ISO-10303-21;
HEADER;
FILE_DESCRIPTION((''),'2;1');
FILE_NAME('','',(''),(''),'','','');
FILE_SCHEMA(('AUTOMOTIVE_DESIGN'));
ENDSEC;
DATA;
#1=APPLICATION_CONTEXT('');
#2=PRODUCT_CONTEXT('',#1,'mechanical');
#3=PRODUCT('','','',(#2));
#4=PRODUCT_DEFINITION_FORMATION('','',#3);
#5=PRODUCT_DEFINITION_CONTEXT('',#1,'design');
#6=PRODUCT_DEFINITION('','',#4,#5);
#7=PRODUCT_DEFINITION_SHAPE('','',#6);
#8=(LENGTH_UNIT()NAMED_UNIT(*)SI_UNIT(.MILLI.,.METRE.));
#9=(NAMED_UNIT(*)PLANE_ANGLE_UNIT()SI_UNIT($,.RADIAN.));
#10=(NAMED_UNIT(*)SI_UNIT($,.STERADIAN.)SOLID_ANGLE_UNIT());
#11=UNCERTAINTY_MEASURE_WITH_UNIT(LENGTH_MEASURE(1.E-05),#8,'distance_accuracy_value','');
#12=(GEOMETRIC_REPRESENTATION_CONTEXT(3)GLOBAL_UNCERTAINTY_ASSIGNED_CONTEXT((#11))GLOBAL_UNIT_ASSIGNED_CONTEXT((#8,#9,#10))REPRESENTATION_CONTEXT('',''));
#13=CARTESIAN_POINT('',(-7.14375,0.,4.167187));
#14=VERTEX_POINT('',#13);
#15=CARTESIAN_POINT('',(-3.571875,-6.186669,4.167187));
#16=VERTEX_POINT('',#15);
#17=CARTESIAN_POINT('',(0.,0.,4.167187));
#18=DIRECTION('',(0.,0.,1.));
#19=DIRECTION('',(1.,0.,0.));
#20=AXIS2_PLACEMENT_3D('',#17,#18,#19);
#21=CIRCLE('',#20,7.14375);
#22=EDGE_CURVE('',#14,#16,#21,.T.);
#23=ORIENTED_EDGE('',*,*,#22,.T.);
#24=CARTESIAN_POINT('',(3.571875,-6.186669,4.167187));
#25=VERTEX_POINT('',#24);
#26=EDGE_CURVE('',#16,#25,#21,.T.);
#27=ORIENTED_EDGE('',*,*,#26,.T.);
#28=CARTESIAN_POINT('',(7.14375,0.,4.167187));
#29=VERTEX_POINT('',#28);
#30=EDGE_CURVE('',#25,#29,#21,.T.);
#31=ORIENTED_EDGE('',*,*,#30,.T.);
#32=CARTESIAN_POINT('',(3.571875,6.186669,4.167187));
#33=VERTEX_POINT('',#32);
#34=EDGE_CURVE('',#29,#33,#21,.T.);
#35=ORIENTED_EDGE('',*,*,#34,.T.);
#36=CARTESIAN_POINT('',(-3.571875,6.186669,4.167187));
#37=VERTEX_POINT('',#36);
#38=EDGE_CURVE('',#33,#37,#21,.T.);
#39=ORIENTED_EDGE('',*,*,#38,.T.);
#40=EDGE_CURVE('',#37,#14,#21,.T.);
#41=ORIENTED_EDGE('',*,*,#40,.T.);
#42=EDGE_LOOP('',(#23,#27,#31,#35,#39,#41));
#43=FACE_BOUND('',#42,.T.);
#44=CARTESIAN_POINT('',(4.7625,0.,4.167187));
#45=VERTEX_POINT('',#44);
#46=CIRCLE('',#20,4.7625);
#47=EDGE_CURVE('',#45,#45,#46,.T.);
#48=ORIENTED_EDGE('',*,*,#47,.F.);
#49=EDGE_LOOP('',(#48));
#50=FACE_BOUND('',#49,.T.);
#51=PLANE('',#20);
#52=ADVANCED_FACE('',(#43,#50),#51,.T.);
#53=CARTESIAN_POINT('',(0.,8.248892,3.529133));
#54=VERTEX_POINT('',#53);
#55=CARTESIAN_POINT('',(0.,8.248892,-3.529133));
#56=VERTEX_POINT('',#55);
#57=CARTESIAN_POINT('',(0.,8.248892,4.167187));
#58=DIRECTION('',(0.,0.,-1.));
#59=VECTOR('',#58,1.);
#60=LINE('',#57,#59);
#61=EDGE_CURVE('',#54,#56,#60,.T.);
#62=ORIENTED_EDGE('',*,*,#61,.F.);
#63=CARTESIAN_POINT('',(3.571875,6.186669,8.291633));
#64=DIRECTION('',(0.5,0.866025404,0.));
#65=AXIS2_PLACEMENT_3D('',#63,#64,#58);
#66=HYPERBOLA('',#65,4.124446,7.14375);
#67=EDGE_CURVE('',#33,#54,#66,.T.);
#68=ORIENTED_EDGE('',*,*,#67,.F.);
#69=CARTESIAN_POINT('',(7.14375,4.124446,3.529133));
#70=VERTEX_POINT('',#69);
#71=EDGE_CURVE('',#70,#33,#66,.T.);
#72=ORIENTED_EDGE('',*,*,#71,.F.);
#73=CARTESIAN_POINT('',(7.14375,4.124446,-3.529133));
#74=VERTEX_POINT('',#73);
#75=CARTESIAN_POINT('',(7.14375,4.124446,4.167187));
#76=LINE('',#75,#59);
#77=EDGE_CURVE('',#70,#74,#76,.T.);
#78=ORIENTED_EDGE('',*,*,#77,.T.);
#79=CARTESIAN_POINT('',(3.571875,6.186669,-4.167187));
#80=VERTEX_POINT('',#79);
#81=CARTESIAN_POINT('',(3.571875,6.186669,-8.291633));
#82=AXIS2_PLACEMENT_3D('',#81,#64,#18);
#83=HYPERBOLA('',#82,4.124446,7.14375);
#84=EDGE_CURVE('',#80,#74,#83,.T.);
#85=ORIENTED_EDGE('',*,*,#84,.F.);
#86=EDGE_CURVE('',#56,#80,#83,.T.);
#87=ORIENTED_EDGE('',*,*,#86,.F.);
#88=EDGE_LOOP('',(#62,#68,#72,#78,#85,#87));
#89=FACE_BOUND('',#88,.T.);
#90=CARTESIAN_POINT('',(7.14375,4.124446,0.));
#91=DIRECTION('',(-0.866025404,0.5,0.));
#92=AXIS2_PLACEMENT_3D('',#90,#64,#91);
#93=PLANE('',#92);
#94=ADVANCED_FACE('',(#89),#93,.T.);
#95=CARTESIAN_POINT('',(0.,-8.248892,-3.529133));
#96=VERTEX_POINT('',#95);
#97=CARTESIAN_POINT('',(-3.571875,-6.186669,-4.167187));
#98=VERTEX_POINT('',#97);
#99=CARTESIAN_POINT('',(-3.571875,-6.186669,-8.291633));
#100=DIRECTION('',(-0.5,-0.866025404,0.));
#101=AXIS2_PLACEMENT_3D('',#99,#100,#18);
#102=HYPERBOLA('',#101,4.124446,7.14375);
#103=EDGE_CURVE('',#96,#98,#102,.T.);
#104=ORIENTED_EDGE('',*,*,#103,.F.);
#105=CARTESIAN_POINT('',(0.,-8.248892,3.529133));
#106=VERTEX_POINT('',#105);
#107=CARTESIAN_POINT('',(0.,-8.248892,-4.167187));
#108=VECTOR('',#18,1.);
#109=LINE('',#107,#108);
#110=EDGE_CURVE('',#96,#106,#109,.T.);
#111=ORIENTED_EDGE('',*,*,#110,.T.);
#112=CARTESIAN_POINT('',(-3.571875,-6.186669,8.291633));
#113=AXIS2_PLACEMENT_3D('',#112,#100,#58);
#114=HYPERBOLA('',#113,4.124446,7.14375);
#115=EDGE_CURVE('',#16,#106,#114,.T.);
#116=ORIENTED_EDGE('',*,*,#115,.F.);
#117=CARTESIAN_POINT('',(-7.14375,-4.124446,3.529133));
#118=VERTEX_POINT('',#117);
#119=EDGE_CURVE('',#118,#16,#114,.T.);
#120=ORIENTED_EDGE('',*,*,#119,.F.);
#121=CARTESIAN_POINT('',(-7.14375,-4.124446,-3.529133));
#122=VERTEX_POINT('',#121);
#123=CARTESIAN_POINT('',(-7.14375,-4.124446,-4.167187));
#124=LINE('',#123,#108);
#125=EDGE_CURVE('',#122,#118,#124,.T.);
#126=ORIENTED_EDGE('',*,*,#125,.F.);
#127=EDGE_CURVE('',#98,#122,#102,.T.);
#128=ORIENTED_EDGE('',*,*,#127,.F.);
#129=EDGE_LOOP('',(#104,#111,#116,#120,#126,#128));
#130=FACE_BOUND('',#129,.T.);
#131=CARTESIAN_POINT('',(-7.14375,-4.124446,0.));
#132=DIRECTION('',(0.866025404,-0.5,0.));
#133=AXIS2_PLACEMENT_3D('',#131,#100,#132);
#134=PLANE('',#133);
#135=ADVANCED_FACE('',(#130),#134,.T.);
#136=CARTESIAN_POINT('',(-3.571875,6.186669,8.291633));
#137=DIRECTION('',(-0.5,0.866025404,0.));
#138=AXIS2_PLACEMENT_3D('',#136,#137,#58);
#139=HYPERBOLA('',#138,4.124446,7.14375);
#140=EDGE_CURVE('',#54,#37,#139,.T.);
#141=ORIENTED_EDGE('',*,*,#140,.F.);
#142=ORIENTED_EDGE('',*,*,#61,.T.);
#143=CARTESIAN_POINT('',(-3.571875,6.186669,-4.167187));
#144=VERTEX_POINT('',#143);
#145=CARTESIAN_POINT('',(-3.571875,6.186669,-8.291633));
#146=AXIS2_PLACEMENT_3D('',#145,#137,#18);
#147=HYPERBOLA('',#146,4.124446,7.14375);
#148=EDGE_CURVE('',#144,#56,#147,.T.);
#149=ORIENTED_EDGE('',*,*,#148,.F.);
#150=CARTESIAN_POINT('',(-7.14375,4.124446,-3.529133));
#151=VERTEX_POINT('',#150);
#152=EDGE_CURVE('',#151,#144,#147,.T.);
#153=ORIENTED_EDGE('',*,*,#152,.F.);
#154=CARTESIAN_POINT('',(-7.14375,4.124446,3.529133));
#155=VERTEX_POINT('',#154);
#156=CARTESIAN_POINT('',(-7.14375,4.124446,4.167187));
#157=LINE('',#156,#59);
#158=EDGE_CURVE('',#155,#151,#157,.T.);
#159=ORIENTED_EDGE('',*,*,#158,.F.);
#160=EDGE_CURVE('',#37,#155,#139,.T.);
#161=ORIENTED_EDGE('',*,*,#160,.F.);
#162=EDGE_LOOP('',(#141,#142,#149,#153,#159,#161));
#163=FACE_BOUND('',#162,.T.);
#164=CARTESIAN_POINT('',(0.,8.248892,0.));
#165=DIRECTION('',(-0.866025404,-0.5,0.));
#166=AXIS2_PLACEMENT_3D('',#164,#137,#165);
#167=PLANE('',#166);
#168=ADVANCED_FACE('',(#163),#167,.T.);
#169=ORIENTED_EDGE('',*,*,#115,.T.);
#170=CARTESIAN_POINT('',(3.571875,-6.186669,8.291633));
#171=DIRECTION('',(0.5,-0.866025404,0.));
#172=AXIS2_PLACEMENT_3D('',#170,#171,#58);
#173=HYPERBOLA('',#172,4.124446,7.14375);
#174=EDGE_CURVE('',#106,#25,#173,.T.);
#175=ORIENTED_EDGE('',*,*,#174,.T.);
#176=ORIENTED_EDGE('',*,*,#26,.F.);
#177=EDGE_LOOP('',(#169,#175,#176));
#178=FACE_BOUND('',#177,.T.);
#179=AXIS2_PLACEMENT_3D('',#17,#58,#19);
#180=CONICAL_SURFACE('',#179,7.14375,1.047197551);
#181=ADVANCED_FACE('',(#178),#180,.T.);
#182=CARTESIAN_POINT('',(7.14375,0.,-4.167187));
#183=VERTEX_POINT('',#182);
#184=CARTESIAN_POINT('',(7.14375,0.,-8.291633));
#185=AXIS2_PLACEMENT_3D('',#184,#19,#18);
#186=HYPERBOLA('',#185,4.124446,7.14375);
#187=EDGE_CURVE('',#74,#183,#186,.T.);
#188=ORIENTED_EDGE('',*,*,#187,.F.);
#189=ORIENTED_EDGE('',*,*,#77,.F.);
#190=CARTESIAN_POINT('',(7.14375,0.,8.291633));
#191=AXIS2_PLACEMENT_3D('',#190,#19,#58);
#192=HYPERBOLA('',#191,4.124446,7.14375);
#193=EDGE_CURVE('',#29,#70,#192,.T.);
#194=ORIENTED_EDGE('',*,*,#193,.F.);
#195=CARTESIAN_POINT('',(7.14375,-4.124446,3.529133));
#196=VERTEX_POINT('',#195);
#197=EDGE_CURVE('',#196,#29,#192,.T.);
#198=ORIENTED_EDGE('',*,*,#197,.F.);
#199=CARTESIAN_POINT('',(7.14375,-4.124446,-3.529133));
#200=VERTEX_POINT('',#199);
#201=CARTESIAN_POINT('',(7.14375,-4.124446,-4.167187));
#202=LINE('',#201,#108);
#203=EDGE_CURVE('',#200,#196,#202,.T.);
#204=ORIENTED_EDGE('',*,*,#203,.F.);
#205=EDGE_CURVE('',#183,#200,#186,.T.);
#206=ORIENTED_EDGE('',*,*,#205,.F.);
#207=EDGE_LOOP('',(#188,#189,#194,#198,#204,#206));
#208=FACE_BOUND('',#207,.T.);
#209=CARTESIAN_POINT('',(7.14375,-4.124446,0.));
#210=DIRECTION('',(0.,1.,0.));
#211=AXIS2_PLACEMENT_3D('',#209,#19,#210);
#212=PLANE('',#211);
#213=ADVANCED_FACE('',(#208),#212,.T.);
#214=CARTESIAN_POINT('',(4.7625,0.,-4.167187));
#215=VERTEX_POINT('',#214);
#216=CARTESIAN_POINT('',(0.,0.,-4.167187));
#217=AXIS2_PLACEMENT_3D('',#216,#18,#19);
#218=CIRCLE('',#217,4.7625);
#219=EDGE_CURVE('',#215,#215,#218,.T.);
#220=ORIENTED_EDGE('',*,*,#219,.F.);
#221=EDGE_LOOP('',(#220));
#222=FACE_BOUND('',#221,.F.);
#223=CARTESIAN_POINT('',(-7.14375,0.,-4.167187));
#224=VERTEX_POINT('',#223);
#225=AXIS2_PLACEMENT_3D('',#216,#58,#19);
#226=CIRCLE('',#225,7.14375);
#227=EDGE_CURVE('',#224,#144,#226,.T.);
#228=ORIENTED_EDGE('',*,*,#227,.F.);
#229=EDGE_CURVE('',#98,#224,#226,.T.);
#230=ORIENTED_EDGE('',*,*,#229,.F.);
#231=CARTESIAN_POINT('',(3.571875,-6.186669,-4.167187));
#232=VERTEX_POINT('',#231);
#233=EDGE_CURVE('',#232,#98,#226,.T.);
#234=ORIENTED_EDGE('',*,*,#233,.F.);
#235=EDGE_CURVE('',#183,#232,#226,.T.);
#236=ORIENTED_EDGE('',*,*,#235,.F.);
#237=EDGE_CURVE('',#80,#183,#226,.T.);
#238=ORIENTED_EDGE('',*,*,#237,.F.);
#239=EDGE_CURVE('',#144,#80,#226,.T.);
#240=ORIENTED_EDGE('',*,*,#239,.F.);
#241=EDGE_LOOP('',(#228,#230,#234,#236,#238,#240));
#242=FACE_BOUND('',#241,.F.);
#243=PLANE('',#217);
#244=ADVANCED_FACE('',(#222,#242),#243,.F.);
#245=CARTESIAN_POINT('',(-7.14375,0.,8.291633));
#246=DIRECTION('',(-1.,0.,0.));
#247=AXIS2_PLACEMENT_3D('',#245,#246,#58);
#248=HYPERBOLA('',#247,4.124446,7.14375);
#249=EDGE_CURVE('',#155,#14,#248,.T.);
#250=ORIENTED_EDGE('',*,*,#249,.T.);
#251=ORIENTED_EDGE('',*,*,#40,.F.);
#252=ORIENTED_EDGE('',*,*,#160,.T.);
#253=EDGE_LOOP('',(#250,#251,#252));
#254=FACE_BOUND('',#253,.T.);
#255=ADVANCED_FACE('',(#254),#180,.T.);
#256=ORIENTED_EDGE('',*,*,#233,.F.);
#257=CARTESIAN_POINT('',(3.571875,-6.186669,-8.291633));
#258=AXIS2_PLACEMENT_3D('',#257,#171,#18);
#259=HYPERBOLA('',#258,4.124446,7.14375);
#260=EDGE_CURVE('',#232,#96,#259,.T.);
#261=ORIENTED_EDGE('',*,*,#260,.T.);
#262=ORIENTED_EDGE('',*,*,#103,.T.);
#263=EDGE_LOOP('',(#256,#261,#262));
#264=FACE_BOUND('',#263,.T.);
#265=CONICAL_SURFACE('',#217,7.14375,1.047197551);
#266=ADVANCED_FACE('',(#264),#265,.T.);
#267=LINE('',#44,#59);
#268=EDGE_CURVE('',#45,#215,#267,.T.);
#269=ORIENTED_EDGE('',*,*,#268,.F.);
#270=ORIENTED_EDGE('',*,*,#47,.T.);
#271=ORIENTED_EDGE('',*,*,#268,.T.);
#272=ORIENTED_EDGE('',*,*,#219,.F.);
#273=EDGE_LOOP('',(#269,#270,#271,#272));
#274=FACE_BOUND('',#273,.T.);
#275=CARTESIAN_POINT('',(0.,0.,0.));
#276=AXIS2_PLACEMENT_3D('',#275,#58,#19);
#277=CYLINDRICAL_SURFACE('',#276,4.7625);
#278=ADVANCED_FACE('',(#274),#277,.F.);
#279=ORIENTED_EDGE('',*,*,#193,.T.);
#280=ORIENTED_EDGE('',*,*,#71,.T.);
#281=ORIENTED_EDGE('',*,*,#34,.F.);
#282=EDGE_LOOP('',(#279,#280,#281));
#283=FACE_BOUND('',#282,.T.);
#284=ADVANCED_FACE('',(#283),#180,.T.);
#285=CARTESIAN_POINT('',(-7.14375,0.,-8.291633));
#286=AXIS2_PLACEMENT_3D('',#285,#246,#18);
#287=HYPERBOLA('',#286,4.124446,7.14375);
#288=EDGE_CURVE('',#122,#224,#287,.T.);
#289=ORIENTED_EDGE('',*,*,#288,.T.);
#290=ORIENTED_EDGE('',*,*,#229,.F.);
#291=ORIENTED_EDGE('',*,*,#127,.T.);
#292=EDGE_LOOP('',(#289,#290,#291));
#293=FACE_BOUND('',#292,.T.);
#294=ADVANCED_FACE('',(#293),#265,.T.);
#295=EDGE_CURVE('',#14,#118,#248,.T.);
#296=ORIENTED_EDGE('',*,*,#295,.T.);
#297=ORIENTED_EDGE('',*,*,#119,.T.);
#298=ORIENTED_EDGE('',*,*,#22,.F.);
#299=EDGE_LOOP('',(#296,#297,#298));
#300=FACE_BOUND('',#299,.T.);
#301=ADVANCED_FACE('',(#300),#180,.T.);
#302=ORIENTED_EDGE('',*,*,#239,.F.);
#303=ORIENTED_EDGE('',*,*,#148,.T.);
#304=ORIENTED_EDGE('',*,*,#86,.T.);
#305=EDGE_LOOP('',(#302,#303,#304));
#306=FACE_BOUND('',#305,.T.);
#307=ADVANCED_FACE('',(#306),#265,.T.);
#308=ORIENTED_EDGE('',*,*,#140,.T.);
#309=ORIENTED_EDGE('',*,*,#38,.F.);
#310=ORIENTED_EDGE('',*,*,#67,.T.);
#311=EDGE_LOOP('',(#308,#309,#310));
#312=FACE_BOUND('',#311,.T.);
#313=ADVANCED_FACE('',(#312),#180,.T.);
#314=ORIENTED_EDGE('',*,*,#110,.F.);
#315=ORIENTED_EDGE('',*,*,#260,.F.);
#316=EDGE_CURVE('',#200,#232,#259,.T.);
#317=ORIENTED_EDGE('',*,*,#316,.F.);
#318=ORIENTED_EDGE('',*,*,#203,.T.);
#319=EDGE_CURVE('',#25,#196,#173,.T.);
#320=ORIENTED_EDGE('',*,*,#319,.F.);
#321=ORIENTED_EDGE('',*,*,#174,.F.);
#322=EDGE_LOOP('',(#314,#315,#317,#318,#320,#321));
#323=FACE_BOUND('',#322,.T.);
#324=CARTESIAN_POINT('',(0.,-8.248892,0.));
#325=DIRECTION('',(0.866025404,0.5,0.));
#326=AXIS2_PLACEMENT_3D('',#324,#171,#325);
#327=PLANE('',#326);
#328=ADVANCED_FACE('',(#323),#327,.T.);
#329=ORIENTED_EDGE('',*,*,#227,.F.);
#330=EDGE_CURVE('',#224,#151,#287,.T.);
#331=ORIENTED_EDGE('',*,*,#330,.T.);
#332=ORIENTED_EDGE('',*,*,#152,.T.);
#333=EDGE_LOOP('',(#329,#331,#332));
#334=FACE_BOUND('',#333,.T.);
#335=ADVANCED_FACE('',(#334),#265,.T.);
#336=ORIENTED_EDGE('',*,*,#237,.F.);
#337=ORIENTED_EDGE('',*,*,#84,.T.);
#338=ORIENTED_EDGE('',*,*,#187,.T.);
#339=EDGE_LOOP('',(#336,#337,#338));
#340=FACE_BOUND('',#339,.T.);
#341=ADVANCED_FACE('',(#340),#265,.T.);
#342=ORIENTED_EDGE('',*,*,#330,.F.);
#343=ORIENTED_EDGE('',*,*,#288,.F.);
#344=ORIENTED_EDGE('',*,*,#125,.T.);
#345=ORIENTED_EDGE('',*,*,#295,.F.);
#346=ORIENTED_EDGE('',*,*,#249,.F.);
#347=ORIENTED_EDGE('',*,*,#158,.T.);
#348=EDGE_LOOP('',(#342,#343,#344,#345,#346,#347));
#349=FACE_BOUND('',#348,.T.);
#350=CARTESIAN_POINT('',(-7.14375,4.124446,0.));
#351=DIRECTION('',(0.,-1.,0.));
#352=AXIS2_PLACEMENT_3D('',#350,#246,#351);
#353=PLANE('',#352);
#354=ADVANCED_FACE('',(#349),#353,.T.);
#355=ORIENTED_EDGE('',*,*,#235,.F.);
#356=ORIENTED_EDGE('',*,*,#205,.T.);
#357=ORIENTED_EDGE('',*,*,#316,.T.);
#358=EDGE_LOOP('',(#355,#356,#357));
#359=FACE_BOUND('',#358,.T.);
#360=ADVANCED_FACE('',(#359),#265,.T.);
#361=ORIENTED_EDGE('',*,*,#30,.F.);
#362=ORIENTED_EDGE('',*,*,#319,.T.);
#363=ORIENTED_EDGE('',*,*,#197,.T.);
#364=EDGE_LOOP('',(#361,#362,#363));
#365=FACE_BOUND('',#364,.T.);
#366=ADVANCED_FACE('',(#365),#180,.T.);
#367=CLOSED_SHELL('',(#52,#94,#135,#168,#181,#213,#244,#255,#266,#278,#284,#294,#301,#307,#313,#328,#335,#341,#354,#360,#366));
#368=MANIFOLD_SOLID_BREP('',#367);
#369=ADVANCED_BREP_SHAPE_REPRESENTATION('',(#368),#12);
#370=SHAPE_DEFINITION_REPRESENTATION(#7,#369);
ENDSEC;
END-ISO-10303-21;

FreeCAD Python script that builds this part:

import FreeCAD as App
import Part
import Sketcher
from FreeCAD import Vector
Q = App.Units.Quantity


def faces_at(feature, points):
    """Names of the faces that lie closest to the given points."""
    faces = feature.Shape.Faces
    near = lambda p: min(range(len(faces)), key=lambda i: faces[i].distToShape(Part.Vertex(*p))[0])
    return sorted({f"Face{near(p) + 1}" for p in points})


def add_polygon(sketch, points):
    """Adds a closed chain of lines whose ends are joined by coincident constraints."""
    first, n = sketch.GeometryCount, len(points)
    for a, b in zip(points, points[1:] + points[:1]):
        sketch.addGeometry(Part.LineSegment(App.Vector(*a, 0), App.Vector(*b, 0)), False)
    for i in range(n):
        sketch.addConstraint(Sketcher.Constraint("Coincident", first + i, 2, first + (i + 1) % n, 1))

doc = App.newDocument("Part")
params = doc.addObject("Spreadsheet::Sheet", "Params")
for row, (alias, value) in enumerate([
    ("sketch1_diameter", "0.375 in"),
    ("pad1_length", "0.328125 in"),
    ("sketch2_diameter", "0.5625 in"),
    ("pad2_length", "1 in"),
    ("draft_angle", "60 deg"),
    ("sketch3_diameter", "0.5625 in"),
    ("pad3_length", "1 in"),
    ("draft2_angle", "60 deg"),
], start=1):
    params.set(f"A{row}", alias)
    params.set(f"B{row}", "=" + value)
    params.setAlias(f"B{row}", alias)

body = doc.addObject("PartDesign::Body", "Body")

sketch1 = body.newObject("Sketcher::SketchObject", "Sketch")
sketch1.AttachmentSupport = (doc.getObject("XY_Plane"), [""])
sketch1.MapMode = "FlatFace"
add_polygon(sketch1, [(-7.14375, 4.124446), (-7.14375, -4.124446), (0, -8.248892), (7.14375, -4.124446), (7.14375, 4.124446), (0, 8.248892)])
sketch1.addGeometry(Part.Circle(Vector(0, 0, 0), Vector(0, 0, 1), 4.7625), False)
sketch1.addConstraint([
    Sketcher.Constraint("Vertical", 0),
    Sketcher.Constraint("Vertical", 3),
    Sketcher.Constraint("Coincident", 6, 3, -1, 1),
    Sketcher.Constraint("Symmetric", 0, 2, 3, 2, -1, 1),
    Sketcher.Constraint("Symmetric", 1, 2, 4, 2, -1, 1),
    Sketcher.Constraint("PointOnObject", 1, 2, -2),
    Sketcher.Constraint("Parallel", 2, 5),
    Sketcher.Constraint("Horizontal", 0, 2, 2, 2),
    Sketcher.Constraint("Diameter", 6, Q("0.375 in")),
    Sketcher.Constraint("Angle", 1, Q("-30 deg")),
    Sketcher.Constraint("DistanceX", 0, 2, -1, 1, Q("0.28125 in")),
    Sketcher.Constraint("DistanceY", 0, 2, 0, 1, 8.248892),
])
sketch1.setExpression("Constraints[14]", "Params.sketch1_diameter")
pad1 = body.newObject("PartDesign::Pad", "Pad")
pad1.Profile = sketch1
pad1.setExpression("Length", "Params.pad1_length")
pad1.Midplane = True
body2 = doc.addObject("PartDesign::Body", "Body001")

sketch2 = body2.newObject("Sketcher::SketchObject", "Sketch001")
sketch2.AttachmentSupport = (doc.getObject("XY_Plane001"), [""])
sketch2.MapMode = "FlatFace"
sketch2.AttachmentOffset = App.Placement(Vector(0, 0, 4.167187), App.Rotation())
add_polygon(sketch2, [(-54.474, 55.579), (-54.474, -55.579), (54.474, -55.579), (54.474, 55.579)])
sketch2.addGeometry(Part.Circle(Vector(0, 0, 0), Vector(0, 0, 1), 7.14375), False)
sketch2.addConstraint([
    Sketcher.Constraint("Vertical", 0),
    Sketcher.Constraint("Horizontal", 1),
    Sketcher.Constraint("Vertical", 2),
    Sketcher.Constraint("Horizontal", 3),
    Sketcher.Constraint("Coincident", 4, 3, -1, 1),
    Sketcher.Constraint("Symmetric", 0, 2, 2, 2, -1, 1),
    Sketcher.Constraint("Diameter", 4, Q("0.5625 in")),
    Sketcher.Constraint("DistanceX", 1, 1, 1, 2, 108.948),
    Sketcher.Constraint("DistanceY", 0, 2, 0, 1, 111.158),
])
sketch2.setExpression("Constraints[10]", "Params.sketch2_diameter")
pad2 = body2.newObject("PartDesign::Pad", "Pad001")
pad2.Profile = sketch2
pad2.setExpression("Length", "Params.pad2_length")
pad2.Reversed = True
doc.recompute()

datumplane = body2.newObject("PartDesign::Plane", "DatumPlane")
datumplane.AttachmentSupport = (doc.getObject("XY_Plane001"), [""])
datumplane.MapMode = "FlatFace"
datumplane.AttachmentOffset = App.Placement(Vector(0, 0, 4.167187), App.Rotation())
draft = body2.newObject("PartDesign::Draft", "Draft")
draft.Base = (pad2, faces_at(pad2, [
    (0, -55.579, -8.533),
    (54.474, 0, -8.533),
    (0, 55.579, -8.533),
    (-54.474, 0, -8.533),
    (-7.144, 0, -8.533),
]))
draft.NeutralPlane = (datumplane, [""])
draft.setExpression("Angle", "Params.draft_angle")
draft.Reversed = True
doc.recompute()

boolean = body.newObject("PartDesign::Boolean", "Boolean")
boolean.Type = "Cut"
boolean.addObjects([body2])
body3 = doc.addObject("PartDesign::Body", "Body002")

sketch3 = body3.newObject("Sketcher::SketchObject", "Sketch002")
sketch3.AttachmentSupport = (doc.getObject("XY_Plane002"), [""])
sketch3.MapMode = "FlatFace"
sketch3.AttachmentOffset = App.Placement(Vector(0, 0, -4.167187), App.Rotation())
add_polygon(sketch3, [(-54.474, -55.579), (-54.474, 55.579), (54.474, 55.579), (54.474, -55.579)])
sketch3.addGeometry(Part.Circle(Vector(0, 0, 0), Vector(0, 0, 1), 7.14375), False)
sketch3.addConstraint([
    Sketcher.Constraint("Vertical", 0),
    Sketcher.Constraint("Horizontal", 1),
    Sketcher.Constraint("Vertical", 2),
    Sketcher.Constraint("Horizontal", 3),
    Sketcher.Constraint("Coincident", 4, 3, -1, 1),
    Sketcher.Constraint("Symmetric", 0, 2, 2, 2, -1, 1),
    Sketcher.Constraint("Diameter", 4, Q("0.5625 in")),
    Sketcher.Constraint("DistanceX", 1, 1, 1, 2, 108.948),
    Sketcher.Constraint("DistanceY", 0, 1, 0, 2, 111.158),
])
sketch3.setExpression("Constraints[10]", "Params.sketch3_diameter")
pad3 = body3.newObject("PartDesign::Pad", "Pad002")
pad3.Profile = sketch3
pad3.setExpression("Length", "Params.pad3_length")
doc.recompute()

datumplane2 = body3.newObject("PartDesign::Plane", "DatumPlane001")
datumplane2.AttachmentSupport = (doc.getObject("XY_Plane002"), [""])
datumplane2.MapMode = "FlatFace"
datumplane2.AttachmentOffset = App.Placement(Vector(0, 0, -4.167187), App.Rotation())
draft2 = body3.newObject("PartDesign::Draft", "Draft001")
draft2.Base = (pad3, faces_at(pad3, [
    (0, -55.579, 8.533),
    (54.474, 0, 8.533),
    (0, 55.579, 8.533),
    (-54.474, 0, 8.533),
    (-7.144, 0, 8.533),
]))
draft2.NeutralPlane = (datumplane2, [""])
draft2.setExpression("Angle", "Params.draft2_angle")
draft2.Reversed = False
doc.recompute()

boolean2 = body.newObject("PartDesign::Boolean", "Boolean001")
boolean2.Type = "Cut"
boolean2.addObjects([body3])

doc.recompute()
